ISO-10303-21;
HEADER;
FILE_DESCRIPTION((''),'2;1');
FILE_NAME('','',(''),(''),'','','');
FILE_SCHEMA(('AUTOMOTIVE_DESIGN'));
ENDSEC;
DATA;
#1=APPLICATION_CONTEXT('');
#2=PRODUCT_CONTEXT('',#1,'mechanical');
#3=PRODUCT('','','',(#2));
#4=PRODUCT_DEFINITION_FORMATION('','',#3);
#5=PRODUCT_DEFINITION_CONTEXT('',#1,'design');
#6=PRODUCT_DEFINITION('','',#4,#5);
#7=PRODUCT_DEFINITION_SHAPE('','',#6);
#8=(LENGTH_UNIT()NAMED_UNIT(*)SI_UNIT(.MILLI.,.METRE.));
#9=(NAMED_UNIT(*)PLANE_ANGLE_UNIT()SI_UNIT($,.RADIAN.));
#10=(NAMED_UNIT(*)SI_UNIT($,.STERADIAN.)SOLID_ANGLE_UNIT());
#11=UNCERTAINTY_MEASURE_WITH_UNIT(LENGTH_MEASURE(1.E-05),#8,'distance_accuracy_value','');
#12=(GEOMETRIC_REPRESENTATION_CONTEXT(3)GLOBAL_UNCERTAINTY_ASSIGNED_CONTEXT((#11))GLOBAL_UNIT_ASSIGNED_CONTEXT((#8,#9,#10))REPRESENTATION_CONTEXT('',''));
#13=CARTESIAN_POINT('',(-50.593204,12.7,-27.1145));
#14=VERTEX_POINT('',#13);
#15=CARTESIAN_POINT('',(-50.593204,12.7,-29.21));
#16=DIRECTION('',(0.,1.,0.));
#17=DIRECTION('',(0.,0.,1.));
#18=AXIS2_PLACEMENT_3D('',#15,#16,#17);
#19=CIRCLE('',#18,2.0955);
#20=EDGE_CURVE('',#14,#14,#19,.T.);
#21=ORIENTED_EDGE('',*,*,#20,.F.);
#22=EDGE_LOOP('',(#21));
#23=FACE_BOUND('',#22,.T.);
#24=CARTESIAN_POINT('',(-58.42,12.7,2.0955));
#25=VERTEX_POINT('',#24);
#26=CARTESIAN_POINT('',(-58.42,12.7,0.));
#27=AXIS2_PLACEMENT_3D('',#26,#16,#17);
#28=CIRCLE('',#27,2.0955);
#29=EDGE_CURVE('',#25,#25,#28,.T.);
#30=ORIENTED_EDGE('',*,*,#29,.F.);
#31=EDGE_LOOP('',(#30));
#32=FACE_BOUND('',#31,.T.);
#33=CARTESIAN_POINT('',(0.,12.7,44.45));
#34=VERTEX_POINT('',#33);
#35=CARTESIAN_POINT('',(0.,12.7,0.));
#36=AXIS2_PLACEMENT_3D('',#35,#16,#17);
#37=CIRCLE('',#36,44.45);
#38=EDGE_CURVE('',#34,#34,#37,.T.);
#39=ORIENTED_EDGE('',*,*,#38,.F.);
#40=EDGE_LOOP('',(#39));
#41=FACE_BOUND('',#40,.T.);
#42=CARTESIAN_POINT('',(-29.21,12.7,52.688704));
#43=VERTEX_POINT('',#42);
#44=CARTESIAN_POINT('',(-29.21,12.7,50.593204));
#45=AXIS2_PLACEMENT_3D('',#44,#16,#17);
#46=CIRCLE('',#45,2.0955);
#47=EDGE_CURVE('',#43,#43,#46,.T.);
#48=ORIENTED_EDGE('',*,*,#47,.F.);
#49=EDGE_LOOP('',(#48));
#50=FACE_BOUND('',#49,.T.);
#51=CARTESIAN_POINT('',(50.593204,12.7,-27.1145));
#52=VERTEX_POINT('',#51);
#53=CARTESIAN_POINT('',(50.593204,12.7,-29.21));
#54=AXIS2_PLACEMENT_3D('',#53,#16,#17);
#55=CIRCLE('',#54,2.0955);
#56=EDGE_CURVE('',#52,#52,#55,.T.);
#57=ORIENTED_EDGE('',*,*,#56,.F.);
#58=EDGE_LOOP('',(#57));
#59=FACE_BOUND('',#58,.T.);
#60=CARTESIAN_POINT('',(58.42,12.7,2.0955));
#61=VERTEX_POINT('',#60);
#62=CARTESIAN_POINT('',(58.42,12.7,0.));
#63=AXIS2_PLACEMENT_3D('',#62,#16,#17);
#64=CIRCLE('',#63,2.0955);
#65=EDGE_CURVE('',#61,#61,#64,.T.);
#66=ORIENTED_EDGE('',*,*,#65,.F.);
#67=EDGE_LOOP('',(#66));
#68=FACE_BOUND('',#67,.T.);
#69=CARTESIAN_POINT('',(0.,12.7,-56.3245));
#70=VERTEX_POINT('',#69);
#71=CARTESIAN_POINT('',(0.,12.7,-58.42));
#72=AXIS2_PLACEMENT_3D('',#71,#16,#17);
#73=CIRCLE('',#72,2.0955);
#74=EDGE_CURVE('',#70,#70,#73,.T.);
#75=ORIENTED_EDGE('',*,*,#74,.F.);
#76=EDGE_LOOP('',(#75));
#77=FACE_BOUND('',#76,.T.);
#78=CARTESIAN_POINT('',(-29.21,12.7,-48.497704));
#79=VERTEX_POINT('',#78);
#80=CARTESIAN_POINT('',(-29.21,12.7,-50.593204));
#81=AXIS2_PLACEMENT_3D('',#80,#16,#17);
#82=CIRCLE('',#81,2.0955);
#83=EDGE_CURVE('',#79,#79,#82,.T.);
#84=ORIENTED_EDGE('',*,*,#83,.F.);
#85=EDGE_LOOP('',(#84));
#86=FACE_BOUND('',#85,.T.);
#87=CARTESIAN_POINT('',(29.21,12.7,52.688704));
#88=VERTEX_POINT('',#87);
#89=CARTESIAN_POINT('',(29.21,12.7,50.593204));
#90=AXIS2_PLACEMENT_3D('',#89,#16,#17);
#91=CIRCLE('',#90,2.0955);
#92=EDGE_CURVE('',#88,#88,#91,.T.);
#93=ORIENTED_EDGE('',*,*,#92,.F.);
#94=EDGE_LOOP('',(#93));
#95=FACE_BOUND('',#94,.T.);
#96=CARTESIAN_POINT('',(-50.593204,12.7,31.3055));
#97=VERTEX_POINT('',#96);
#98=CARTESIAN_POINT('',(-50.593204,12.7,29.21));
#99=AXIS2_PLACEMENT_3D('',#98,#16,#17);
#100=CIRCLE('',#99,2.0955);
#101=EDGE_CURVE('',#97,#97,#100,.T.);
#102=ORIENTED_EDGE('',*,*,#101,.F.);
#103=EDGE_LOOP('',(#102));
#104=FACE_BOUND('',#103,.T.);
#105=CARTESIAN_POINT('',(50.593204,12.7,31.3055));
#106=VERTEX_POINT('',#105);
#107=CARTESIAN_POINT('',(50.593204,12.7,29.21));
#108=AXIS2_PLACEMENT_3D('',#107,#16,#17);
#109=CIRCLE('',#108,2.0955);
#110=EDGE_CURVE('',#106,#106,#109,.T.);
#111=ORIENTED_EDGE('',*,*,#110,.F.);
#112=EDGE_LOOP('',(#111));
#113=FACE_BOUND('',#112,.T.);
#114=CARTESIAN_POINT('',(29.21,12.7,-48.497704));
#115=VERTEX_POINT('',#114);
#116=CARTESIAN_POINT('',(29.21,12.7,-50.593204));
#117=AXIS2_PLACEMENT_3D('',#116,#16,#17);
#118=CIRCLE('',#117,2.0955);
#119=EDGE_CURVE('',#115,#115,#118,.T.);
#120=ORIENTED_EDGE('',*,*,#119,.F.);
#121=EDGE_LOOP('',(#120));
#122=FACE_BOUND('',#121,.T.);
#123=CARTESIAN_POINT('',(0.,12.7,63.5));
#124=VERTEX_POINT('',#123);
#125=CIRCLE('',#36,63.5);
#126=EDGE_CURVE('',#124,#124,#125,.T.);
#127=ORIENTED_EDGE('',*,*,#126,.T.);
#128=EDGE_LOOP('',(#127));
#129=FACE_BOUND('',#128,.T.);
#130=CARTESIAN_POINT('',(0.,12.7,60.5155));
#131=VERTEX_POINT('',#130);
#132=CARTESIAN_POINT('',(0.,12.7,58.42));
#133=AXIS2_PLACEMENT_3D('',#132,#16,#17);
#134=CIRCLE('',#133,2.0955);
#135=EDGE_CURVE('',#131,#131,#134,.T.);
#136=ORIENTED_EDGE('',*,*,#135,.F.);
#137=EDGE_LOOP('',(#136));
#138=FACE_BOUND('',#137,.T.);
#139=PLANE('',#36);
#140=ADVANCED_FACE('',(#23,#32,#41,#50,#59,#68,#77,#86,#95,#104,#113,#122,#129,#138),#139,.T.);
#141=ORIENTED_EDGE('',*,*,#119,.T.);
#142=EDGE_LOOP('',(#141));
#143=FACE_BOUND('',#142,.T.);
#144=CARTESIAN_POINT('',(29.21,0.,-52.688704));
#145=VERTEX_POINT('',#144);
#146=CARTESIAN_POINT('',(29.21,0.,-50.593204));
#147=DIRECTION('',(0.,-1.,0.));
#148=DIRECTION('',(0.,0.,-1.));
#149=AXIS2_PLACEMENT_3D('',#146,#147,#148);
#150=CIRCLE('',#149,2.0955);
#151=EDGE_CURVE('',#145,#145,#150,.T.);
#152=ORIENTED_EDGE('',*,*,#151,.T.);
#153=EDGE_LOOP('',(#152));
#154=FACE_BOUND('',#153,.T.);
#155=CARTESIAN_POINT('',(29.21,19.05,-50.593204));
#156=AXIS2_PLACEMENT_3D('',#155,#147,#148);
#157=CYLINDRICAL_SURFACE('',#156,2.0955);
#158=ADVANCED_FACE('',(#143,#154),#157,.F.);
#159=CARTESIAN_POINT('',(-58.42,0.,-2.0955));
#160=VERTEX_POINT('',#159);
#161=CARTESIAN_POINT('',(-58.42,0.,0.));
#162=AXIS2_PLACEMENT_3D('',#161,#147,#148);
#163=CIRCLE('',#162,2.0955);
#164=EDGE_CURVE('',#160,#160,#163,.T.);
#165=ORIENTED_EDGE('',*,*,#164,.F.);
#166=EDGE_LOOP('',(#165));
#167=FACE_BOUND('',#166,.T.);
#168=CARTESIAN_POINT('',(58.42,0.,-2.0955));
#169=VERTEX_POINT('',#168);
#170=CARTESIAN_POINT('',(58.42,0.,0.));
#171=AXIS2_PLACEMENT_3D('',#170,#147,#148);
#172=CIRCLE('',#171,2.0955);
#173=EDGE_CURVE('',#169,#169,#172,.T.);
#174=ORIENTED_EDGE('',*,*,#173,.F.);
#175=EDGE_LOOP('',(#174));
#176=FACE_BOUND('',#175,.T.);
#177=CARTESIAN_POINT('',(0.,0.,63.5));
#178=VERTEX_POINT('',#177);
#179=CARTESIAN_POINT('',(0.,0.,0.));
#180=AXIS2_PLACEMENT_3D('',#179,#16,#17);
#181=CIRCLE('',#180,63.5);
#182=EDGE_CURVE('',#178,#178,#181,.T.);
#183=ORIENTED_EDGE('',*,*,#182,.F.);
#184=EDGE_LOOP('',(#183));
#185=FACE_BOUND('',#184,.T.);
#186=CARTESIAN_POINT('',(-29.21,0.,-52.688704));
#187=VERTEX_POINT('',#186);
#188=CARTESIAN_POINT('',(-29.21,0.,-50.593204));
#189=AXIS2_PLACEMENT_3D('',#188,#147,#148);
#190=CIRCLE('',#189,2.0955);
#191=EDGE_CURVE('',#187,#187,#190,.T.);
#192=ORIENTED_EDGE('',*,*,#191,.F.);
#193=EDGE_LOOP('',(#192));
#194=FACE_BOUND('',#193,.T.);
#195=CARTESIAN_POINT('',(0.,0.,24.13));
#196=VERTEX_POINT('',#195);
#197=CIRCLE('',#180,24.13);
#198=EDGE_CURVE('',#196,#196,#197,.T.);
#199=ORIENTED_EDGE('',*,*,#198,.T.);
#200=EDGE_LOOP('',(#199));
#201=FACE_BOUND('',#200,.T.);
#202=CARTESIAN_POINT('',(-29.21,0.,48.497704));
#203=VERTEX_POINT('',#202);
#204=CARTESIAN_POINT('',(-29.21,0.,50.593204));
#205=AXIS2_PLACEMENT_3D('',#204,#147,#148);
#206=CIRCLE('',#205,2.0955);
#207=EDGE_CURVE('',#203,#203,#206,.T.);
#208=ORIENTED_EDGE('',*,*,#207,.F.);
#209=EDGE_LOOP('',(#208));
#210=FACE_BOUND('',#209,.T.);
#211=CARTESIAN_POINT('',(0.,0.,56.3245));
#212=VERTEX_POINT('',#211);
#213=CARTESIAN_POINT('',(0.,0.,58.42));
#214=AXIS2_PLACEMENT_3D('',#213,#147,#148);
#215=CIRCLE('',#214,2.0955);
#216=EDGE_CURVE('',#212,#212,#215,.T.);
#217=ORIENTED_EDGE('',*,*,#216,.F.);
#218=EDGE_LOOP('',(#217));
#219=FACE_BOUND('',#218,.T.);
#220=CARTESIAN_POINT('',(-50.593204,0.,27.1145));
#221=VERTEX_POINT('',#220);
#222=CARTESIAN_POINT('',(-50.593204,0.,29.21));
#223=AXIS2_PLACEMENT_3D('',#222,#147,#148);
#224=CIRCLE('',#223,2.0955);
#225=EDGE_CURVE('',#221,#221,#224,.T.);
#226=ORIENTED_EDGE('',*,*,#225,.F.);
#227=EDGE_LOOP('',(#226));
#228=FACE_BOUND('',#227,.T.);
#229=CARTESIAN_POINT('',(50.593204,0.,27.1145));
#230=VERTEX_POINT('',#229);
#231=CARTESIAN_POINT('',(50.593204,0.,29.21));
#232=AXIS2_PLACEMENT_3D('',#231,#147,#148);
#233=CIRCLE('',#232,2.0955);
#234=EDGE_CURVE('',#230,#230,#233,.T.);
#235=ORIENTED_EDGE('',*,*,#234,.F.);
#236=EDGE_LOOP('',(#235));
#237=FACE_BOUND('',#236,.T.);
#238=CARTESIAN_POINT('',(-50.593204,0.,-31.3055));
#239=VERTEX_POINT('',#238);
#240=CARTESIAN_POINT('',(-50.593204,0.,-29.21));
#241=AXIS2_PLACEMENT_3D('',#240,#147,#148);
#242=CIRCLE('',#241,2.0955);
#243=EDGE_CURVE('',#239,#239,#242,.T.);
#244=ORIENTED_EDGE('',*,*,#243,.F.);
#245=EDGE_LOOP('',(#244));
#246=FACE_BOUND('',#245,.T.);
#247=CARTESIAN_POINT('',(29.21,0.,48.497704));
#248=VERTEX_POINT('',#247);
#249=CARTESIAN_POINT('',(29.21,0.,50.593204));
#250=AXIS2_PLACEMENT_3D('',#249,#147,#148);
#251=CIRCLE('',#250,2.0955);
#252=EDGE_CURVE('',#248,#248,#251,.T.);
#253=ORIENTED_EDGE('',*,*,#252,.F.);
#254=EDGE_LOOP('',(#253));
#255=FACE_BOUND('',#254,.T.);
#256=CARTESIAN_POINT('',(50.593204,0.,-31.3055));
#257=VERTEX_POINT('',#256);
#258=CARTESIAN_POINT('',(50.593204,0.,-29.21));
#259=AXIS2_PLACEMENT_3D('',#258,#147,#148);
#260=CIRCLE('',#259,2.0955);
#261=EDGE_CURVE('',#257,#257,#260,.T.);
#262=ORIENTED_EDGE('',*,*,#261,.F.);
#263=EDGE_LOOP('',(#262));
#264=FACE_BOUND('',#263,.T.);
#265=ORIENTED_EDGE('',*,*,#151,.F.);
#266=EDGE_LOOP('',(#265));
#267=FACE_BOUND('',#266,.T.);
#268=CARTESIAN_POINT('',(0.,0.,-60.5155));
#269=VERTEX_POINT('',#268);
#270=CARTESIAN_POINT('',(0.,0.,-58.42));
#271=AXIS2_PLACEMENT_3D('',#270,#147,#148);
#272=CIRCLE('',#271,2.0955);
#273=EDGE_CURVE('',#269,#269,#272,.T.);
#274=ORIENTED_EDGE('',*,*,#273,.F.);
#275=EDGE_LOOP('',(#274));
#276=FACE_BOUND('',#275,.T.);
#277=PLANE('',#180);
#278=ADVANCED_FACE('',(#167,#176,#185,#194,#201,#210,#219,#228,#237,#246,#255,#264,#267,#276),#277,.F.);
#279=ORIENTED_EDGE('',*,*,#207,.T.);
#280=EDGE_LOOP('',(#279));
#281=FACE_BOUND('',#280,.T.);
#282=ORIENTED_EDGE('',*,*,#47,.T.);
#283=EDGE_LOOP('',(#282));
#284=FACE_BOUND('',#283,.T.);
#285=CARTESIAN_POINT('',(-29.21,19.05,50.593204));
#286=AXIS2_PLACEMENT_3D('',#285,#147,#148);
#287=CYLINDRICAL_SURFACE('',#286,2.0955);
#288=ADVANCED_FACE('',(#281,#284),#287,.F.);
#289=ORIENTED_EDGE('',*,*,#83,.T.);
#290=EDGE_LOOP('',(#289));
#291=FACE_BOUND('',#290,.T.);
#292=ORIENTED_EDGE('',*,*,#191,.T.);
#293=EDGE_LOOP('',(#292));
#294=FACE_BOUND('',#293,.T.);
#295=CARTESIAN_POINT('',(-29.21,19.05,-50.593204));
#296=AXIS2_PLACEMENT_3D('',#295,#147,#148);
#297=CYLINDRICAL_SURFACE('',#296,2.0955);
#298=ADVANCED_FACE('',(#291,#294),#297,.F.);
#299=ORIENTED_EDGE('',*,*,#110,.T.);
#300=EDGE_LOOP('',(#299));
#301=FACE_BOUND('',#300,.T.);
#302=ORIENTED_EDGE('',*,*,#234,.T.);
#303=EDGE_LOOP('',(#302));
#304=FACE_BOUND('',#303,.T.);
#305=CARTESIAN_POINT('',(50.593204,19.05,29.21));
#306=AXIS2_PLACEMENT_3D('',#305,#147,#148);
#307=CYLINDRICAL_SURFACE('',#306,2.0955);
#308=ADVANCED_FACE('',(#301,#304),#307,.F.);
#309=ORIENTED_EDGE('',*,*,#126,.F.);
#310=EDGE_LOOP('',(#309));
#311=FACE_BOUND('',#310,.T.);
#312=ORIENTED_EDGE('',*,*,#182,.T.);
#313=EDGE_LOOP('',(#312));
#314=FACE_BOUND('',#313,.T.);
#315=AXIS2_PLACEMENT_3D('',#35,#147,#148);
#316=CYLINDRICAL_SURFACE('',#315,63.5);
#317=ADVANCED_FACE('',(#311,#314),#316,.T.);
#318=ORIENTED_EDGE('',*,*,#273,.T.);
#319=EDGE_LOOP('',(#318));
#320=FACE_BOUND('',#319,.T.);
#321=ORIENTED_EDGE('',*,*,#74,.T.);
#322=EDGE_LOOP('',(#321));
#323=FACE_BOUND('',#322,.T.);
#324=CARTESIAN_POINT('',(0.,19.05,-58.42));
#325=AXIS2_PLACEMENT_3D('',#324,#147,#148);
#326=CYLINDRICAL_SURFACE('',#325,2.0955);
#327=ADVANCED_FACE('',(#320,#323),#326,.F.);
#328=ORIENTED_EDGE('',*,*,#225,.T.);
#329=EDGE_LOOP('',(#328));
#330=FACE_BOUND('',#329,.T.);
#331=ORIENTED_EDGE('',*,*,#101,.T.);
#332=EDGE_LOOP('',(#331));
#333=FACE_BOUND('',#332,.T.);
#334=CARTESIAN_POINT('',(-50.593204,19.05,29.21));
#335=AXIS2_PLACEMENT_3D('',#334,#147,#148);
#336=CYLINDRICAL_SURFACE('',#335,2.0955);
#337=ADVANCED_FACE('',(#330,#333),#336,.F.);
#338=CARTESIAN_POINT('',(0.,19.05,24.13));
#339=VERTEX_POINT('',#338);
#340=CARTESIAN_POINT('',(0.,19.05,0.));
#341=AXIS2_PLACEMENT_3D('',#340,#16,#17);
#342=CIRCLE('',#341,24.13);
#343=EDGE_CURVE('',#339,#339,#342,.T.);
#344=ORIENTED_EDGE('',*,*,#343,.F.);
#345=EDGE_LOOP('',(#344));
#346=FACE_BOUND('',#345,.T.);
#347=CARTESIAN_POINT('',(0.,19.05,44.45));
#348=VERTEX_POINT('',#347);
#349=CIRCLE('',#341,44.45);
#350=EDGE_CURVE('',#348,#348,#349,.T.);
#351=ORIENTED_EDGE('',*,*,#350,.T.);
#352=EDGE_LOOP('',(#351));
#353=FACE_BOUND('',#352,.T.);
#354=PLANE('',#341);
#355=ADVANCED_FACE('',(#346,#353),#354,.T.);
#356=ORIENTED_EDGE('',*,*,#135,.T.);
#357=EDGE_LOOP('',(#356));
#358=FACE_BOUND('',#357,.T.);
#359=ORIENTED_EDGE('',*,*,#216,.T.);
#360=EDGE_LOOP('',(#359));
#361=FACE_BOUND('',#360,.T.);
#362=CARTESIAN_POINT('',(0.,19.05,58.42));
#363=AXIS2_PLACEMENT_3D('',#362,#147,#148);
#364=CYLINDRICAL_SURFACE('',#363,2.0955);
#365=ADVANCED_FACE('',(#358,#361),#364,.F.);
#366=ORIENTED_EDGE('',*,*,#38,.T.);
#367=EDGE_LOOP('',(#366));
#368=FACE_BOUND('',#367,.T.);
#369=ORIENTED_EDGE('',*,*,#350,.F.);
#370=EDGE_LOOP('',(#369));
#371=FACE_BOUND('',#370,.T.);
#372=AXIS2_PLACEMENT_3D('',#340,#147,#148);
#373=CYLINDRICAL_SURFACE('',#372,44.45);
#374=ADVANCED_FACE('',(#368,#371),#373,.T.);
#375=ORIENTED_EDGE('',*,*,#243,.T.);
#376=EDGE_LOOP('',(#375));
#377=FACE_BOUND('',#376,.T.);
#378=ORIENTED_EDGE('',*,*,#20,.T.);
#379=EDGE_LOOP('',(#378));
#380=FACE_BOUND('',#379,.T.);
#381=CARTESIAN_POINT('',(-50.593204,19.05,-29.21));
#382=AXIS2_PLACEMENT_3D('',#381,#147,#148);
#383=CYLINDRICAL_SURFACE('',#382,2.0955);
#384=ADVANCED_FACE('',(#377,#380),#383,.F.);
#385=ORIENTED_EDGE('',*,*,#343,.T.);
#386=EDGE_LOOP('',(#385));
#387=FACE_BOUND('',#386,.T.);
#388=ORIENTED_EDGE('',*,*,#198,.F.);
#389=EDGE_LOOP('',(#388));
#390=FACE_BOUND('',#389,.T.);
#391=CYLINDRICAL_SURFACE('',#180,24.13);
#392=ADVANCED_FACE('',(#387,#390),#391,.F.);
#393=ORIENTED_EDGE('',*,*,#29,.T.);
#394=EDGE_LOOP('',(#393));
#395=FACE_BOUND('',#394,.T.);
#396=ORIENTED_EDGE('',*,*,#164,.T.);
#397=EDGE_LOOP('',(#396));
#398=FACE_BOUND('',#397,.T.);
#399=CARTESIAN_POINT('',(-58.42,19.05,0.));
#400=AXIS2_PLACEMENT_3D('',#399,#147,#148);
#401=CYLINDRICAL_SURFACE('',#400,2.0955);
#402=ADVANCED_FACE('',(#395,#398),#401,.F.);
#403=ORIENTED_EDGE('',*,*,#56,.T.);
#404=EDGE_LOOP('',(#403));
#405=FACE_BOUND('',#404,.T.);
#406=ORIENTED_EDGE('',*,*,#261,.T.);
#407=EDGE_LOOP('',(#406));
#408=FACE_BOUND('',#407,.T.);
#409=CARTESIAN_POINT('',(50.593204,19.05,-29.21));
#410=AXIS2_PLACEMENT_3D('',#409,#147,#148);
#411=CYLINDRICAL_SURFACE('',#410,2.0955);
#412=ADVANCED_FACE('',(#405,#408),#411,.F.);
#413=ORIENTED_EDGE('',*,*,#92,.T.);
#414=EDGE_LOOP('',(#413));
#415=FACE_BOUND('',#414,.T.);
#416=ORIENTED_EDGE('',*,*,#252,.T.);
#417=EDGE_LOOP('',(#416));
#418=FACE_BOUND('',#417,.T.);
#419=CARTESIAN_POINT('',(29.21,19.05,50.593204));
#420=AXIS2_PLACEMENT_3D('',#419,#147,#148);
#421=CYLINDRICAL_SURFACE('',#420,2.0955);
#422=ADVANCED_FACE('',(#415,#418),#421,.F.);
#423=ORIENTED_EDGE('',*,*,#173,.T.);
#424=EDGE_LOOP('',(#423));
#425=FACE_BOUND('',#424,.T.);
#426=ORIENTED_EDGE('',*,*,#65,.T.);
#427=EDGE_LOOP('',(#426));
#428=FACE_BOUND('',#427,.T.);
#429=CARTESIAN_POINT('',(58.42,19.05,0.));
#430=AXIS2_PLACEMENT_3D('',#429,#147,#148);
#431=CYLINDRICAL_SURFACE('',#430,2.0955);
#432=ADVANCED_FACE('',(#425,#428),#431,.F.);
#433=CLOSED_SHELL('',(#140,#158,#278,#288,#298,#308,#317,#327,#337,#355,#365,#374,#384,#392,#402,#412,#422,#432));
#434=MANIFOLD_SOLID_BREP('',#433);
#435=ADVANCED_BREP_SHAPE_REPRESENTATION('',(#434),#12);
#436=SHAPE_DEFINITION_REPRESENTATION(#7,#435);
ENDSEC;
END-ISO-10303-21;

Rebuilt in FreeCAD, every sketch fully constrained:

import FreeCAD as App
import Part
import Sketcher
Q = App.Units.Quantity

doc = App.newDocument("Part")
body = doc.addObject("PartDesign::Body", "Body")

# Sketch on XZ plane
sketch1 = body.newObject("Sketcher::SketchObject", "Sketch")
sketch1.AttachmentSupport = (doc.getObject("XZ_Plane"), [""])
sketch1.MapMode = "FlatFace"
sketch1.addGeometry(Part.Circle(App.Vector(0, 0, 0), App.Vector(0, 0, 1), 64), False)
sketch1.addConstraint([
    Sketcher.Constraint("Coincident", 0, 3, -1, 1),
    Sketcher.Constraint("Diameter", 0, Q("5 in")),
])
pad1 = body.newObject("PartDesign::Pad", "Pad")
pad1.Profile = sketch1
pad1.Length = Q("0.5 in")
pad1.Reversed = True

# Sketch on XZ plane
sketch2 = body.newObject("Sketcher::SketchObject", "Sketch001")
sketch2.AttachmentSupport = (doc.getObject("XZ_Plane"), [""])
sketch2.MapMode = "FlatFace"
sketch2.AttachmentOffset = App.Placement(App.Vector(0, 0, -0.5 * 25.4), App.Rotation())
sketch2.addGeometry(Part.Circle(App.Vector(0, 0, 0), App.Vector(0, 0, 1), 44), False)
sketch2.addConstraint([
    Sketcher.Constraint("Coincident", 0, 3, -1, 1),
    Sketcher.Constraint("Diameter", 0, Q("3.5 in")),
])
pad2 = body.newObject("PartDesign::Pad", "Pad001")
pad2.Profile = sketch2
pad2.Length = Q("0.25 in")
pad2.Reversed = True

# Sketch on XZ plane
sketch3 = body.newObject("Sketcher::SketchObject", "Sketch002")
sketch3.AttachmentSupport = (doc.getObject("XZ_Plane"), [""])
sketch3.MapMode = "FlatFace"
sketch3.AttachmentOffset = App.Placement(App.Vector(0, 0, -0.75 * 25.4), App.Rotation())
sketch3.addGeometry(Part.Circle(App.Vector(0, 0, 0), App.Vector(0, 0, 1), 24), False)
sketch3.addConstraint([
    Sketcher.Constraint("Coincident", 0, 3, -1, 1),
    Sketcher.Constraint("Diameter", 0, Q("1.9 in")),
])
pocket1 = body.newObject("PartDesign::Pocket", "Pocket")
pocket1.Profile = sketch3
pocket1.Type = "ThroughAll"
pocket1.Midplane = True

# Sketch on XZ plane
sketch4 = body.newObject("Sketcher::SketchObject", "Sketch003")
sketch4.AttachmentSupport = (doc.getObject("XZ_Plane"), [""])
sketch4.MapMode = "FlatFace"
sketch4.addGeometry([
    Part.Circle(App.Vector(0, -58.4, 0), App.Vector(0, 0, 1), 2.1),  # 0
    Part.Circle(App.Vector(-29.2, -50.6, 0), App.Vector(0, 0, 1), 2.1),  # 1
    Part.Circle(App.Vector(-50.6, -29.2, 0), App.Vector(0, 0, 1), 2.1),  # 2
    Part.Circle(App.Vector(-58.4, 0, 0), App.Vector(0, 0, 1), 2.1),  # 3
    Part.Circle(App.Vector(-50.6, 29.2, 0), App.Vector(0, 0, 1), 2.1),  # 4
    Part.Circle(App.Vector(-29.2, 50.6, 0), App.Vector(0, 0, 1), 2.1),  # 5
    Part.Circle(App.Vector(0, 58.4, 0), App.Vector(0, 0, 1), 2.1),  # 6
    Part.Circle(App.Vector(29.2, 50.6, 0), App.Vector(0, 0, 1), 2.1),  # 7
    Part.Circle(App.Vector(50.6, 29.2, 0), App.Vector(0, 0, 1), 2.1),  # 8
    Part.Circle(App.Vector(58.4, 0, 0), App.Vector(0, 0, 1), 2.1),  # 9
    Part.Circle(App.Vector(50.6, -29.2, 0), App.Vector(0, 0, 1), 2.1),  # 10
    Part.Circle(App.Vector(29.2, -50.6, 0), App.Vector(0, 0, 1), 2.1),  # 11
], False)
sketch4.addConstraint([
    Sketcher.Constraint("Equal", 0, 1),
    Sketcher.Constraint("Equal", 1, 2),
    Sketcher.Constraint("Equal", 2, 3),
    Sketcher.Constraint("Equal", 3, 4),
    Sketcher.Constraint("Equal", 4, 5),
    Sketcher.Constraint("Equal", 5, 6),
    Sketcher.Constraint("Equal", 6, 7),
    Sketcher.Constraint("Equal", 7, 8),
    Sketcher.Constraint("Equal", 8, 9),
    Sketcher.Constraint("Equal", 9, 10),
    Sketcher.Constraint("Equal", 10, 11),
    Sketcher.Constraint("Symmetric", 0, 3, 6, 3, -1, 1),
    Sketcher.Constraint("Symmetric", 1, 3, 7, 3, -1, 1),
    Sketcher.Constraint("Symmetric", 2, 3, 8, 3, -1, 1),
    Sketcher.Constraint("Symmetric", 3, 3, 9, 3, -1, 1),
    Sketcher.Constraint("Symmetric", 4, 3, 10, 3, -1, 1),
    Sketcher.Constraint("Symmetric", 5, 3, 11, 3, -1, 1),
    Sketcher.Constraint("Symmetric", 5, 3, 7, 3, -2),
    Sketcher.Constraint("Symmetric", 4, 3, 8, 3, -2),
    Sketcher.Constraint("PointOnObject", 0, 3, -2),
    Sketcher.Constraint("PointOnObject", 3, 3, -1),
    Sketcher.Constraint("Diameter", 0, Q("0.165 in")),
    Sketcher.Constraint("DistanceY", 0, 3, -1, 1, Q("2.3 in")),
    Sketcher.Constraint("DistanceX", 3, 3, -1, 1, Q("2.3 in")),
    Sketcher.Constraint("DistanceY", 2, 3, 4, 3, Q("2.3 in")),
    Sketcher.Constraint("DistanceX", 5, 3, 7, 3, Q("2.3 in")),
    Sketcher.Constraint("DistanceY", 1, 3, 5, 3, Q("101.186408 mm")),
    Sketcher.Constraint("DistanceX", 4, 3, 8, 3, Q("101.186408 mm")),
])
pocket2 = body.newObject("PartDesign::Pocket", "Pocket001")
pocket2.Profile = sketch4
pocket2.Type = "ThroughAll"

doc.recompute()
